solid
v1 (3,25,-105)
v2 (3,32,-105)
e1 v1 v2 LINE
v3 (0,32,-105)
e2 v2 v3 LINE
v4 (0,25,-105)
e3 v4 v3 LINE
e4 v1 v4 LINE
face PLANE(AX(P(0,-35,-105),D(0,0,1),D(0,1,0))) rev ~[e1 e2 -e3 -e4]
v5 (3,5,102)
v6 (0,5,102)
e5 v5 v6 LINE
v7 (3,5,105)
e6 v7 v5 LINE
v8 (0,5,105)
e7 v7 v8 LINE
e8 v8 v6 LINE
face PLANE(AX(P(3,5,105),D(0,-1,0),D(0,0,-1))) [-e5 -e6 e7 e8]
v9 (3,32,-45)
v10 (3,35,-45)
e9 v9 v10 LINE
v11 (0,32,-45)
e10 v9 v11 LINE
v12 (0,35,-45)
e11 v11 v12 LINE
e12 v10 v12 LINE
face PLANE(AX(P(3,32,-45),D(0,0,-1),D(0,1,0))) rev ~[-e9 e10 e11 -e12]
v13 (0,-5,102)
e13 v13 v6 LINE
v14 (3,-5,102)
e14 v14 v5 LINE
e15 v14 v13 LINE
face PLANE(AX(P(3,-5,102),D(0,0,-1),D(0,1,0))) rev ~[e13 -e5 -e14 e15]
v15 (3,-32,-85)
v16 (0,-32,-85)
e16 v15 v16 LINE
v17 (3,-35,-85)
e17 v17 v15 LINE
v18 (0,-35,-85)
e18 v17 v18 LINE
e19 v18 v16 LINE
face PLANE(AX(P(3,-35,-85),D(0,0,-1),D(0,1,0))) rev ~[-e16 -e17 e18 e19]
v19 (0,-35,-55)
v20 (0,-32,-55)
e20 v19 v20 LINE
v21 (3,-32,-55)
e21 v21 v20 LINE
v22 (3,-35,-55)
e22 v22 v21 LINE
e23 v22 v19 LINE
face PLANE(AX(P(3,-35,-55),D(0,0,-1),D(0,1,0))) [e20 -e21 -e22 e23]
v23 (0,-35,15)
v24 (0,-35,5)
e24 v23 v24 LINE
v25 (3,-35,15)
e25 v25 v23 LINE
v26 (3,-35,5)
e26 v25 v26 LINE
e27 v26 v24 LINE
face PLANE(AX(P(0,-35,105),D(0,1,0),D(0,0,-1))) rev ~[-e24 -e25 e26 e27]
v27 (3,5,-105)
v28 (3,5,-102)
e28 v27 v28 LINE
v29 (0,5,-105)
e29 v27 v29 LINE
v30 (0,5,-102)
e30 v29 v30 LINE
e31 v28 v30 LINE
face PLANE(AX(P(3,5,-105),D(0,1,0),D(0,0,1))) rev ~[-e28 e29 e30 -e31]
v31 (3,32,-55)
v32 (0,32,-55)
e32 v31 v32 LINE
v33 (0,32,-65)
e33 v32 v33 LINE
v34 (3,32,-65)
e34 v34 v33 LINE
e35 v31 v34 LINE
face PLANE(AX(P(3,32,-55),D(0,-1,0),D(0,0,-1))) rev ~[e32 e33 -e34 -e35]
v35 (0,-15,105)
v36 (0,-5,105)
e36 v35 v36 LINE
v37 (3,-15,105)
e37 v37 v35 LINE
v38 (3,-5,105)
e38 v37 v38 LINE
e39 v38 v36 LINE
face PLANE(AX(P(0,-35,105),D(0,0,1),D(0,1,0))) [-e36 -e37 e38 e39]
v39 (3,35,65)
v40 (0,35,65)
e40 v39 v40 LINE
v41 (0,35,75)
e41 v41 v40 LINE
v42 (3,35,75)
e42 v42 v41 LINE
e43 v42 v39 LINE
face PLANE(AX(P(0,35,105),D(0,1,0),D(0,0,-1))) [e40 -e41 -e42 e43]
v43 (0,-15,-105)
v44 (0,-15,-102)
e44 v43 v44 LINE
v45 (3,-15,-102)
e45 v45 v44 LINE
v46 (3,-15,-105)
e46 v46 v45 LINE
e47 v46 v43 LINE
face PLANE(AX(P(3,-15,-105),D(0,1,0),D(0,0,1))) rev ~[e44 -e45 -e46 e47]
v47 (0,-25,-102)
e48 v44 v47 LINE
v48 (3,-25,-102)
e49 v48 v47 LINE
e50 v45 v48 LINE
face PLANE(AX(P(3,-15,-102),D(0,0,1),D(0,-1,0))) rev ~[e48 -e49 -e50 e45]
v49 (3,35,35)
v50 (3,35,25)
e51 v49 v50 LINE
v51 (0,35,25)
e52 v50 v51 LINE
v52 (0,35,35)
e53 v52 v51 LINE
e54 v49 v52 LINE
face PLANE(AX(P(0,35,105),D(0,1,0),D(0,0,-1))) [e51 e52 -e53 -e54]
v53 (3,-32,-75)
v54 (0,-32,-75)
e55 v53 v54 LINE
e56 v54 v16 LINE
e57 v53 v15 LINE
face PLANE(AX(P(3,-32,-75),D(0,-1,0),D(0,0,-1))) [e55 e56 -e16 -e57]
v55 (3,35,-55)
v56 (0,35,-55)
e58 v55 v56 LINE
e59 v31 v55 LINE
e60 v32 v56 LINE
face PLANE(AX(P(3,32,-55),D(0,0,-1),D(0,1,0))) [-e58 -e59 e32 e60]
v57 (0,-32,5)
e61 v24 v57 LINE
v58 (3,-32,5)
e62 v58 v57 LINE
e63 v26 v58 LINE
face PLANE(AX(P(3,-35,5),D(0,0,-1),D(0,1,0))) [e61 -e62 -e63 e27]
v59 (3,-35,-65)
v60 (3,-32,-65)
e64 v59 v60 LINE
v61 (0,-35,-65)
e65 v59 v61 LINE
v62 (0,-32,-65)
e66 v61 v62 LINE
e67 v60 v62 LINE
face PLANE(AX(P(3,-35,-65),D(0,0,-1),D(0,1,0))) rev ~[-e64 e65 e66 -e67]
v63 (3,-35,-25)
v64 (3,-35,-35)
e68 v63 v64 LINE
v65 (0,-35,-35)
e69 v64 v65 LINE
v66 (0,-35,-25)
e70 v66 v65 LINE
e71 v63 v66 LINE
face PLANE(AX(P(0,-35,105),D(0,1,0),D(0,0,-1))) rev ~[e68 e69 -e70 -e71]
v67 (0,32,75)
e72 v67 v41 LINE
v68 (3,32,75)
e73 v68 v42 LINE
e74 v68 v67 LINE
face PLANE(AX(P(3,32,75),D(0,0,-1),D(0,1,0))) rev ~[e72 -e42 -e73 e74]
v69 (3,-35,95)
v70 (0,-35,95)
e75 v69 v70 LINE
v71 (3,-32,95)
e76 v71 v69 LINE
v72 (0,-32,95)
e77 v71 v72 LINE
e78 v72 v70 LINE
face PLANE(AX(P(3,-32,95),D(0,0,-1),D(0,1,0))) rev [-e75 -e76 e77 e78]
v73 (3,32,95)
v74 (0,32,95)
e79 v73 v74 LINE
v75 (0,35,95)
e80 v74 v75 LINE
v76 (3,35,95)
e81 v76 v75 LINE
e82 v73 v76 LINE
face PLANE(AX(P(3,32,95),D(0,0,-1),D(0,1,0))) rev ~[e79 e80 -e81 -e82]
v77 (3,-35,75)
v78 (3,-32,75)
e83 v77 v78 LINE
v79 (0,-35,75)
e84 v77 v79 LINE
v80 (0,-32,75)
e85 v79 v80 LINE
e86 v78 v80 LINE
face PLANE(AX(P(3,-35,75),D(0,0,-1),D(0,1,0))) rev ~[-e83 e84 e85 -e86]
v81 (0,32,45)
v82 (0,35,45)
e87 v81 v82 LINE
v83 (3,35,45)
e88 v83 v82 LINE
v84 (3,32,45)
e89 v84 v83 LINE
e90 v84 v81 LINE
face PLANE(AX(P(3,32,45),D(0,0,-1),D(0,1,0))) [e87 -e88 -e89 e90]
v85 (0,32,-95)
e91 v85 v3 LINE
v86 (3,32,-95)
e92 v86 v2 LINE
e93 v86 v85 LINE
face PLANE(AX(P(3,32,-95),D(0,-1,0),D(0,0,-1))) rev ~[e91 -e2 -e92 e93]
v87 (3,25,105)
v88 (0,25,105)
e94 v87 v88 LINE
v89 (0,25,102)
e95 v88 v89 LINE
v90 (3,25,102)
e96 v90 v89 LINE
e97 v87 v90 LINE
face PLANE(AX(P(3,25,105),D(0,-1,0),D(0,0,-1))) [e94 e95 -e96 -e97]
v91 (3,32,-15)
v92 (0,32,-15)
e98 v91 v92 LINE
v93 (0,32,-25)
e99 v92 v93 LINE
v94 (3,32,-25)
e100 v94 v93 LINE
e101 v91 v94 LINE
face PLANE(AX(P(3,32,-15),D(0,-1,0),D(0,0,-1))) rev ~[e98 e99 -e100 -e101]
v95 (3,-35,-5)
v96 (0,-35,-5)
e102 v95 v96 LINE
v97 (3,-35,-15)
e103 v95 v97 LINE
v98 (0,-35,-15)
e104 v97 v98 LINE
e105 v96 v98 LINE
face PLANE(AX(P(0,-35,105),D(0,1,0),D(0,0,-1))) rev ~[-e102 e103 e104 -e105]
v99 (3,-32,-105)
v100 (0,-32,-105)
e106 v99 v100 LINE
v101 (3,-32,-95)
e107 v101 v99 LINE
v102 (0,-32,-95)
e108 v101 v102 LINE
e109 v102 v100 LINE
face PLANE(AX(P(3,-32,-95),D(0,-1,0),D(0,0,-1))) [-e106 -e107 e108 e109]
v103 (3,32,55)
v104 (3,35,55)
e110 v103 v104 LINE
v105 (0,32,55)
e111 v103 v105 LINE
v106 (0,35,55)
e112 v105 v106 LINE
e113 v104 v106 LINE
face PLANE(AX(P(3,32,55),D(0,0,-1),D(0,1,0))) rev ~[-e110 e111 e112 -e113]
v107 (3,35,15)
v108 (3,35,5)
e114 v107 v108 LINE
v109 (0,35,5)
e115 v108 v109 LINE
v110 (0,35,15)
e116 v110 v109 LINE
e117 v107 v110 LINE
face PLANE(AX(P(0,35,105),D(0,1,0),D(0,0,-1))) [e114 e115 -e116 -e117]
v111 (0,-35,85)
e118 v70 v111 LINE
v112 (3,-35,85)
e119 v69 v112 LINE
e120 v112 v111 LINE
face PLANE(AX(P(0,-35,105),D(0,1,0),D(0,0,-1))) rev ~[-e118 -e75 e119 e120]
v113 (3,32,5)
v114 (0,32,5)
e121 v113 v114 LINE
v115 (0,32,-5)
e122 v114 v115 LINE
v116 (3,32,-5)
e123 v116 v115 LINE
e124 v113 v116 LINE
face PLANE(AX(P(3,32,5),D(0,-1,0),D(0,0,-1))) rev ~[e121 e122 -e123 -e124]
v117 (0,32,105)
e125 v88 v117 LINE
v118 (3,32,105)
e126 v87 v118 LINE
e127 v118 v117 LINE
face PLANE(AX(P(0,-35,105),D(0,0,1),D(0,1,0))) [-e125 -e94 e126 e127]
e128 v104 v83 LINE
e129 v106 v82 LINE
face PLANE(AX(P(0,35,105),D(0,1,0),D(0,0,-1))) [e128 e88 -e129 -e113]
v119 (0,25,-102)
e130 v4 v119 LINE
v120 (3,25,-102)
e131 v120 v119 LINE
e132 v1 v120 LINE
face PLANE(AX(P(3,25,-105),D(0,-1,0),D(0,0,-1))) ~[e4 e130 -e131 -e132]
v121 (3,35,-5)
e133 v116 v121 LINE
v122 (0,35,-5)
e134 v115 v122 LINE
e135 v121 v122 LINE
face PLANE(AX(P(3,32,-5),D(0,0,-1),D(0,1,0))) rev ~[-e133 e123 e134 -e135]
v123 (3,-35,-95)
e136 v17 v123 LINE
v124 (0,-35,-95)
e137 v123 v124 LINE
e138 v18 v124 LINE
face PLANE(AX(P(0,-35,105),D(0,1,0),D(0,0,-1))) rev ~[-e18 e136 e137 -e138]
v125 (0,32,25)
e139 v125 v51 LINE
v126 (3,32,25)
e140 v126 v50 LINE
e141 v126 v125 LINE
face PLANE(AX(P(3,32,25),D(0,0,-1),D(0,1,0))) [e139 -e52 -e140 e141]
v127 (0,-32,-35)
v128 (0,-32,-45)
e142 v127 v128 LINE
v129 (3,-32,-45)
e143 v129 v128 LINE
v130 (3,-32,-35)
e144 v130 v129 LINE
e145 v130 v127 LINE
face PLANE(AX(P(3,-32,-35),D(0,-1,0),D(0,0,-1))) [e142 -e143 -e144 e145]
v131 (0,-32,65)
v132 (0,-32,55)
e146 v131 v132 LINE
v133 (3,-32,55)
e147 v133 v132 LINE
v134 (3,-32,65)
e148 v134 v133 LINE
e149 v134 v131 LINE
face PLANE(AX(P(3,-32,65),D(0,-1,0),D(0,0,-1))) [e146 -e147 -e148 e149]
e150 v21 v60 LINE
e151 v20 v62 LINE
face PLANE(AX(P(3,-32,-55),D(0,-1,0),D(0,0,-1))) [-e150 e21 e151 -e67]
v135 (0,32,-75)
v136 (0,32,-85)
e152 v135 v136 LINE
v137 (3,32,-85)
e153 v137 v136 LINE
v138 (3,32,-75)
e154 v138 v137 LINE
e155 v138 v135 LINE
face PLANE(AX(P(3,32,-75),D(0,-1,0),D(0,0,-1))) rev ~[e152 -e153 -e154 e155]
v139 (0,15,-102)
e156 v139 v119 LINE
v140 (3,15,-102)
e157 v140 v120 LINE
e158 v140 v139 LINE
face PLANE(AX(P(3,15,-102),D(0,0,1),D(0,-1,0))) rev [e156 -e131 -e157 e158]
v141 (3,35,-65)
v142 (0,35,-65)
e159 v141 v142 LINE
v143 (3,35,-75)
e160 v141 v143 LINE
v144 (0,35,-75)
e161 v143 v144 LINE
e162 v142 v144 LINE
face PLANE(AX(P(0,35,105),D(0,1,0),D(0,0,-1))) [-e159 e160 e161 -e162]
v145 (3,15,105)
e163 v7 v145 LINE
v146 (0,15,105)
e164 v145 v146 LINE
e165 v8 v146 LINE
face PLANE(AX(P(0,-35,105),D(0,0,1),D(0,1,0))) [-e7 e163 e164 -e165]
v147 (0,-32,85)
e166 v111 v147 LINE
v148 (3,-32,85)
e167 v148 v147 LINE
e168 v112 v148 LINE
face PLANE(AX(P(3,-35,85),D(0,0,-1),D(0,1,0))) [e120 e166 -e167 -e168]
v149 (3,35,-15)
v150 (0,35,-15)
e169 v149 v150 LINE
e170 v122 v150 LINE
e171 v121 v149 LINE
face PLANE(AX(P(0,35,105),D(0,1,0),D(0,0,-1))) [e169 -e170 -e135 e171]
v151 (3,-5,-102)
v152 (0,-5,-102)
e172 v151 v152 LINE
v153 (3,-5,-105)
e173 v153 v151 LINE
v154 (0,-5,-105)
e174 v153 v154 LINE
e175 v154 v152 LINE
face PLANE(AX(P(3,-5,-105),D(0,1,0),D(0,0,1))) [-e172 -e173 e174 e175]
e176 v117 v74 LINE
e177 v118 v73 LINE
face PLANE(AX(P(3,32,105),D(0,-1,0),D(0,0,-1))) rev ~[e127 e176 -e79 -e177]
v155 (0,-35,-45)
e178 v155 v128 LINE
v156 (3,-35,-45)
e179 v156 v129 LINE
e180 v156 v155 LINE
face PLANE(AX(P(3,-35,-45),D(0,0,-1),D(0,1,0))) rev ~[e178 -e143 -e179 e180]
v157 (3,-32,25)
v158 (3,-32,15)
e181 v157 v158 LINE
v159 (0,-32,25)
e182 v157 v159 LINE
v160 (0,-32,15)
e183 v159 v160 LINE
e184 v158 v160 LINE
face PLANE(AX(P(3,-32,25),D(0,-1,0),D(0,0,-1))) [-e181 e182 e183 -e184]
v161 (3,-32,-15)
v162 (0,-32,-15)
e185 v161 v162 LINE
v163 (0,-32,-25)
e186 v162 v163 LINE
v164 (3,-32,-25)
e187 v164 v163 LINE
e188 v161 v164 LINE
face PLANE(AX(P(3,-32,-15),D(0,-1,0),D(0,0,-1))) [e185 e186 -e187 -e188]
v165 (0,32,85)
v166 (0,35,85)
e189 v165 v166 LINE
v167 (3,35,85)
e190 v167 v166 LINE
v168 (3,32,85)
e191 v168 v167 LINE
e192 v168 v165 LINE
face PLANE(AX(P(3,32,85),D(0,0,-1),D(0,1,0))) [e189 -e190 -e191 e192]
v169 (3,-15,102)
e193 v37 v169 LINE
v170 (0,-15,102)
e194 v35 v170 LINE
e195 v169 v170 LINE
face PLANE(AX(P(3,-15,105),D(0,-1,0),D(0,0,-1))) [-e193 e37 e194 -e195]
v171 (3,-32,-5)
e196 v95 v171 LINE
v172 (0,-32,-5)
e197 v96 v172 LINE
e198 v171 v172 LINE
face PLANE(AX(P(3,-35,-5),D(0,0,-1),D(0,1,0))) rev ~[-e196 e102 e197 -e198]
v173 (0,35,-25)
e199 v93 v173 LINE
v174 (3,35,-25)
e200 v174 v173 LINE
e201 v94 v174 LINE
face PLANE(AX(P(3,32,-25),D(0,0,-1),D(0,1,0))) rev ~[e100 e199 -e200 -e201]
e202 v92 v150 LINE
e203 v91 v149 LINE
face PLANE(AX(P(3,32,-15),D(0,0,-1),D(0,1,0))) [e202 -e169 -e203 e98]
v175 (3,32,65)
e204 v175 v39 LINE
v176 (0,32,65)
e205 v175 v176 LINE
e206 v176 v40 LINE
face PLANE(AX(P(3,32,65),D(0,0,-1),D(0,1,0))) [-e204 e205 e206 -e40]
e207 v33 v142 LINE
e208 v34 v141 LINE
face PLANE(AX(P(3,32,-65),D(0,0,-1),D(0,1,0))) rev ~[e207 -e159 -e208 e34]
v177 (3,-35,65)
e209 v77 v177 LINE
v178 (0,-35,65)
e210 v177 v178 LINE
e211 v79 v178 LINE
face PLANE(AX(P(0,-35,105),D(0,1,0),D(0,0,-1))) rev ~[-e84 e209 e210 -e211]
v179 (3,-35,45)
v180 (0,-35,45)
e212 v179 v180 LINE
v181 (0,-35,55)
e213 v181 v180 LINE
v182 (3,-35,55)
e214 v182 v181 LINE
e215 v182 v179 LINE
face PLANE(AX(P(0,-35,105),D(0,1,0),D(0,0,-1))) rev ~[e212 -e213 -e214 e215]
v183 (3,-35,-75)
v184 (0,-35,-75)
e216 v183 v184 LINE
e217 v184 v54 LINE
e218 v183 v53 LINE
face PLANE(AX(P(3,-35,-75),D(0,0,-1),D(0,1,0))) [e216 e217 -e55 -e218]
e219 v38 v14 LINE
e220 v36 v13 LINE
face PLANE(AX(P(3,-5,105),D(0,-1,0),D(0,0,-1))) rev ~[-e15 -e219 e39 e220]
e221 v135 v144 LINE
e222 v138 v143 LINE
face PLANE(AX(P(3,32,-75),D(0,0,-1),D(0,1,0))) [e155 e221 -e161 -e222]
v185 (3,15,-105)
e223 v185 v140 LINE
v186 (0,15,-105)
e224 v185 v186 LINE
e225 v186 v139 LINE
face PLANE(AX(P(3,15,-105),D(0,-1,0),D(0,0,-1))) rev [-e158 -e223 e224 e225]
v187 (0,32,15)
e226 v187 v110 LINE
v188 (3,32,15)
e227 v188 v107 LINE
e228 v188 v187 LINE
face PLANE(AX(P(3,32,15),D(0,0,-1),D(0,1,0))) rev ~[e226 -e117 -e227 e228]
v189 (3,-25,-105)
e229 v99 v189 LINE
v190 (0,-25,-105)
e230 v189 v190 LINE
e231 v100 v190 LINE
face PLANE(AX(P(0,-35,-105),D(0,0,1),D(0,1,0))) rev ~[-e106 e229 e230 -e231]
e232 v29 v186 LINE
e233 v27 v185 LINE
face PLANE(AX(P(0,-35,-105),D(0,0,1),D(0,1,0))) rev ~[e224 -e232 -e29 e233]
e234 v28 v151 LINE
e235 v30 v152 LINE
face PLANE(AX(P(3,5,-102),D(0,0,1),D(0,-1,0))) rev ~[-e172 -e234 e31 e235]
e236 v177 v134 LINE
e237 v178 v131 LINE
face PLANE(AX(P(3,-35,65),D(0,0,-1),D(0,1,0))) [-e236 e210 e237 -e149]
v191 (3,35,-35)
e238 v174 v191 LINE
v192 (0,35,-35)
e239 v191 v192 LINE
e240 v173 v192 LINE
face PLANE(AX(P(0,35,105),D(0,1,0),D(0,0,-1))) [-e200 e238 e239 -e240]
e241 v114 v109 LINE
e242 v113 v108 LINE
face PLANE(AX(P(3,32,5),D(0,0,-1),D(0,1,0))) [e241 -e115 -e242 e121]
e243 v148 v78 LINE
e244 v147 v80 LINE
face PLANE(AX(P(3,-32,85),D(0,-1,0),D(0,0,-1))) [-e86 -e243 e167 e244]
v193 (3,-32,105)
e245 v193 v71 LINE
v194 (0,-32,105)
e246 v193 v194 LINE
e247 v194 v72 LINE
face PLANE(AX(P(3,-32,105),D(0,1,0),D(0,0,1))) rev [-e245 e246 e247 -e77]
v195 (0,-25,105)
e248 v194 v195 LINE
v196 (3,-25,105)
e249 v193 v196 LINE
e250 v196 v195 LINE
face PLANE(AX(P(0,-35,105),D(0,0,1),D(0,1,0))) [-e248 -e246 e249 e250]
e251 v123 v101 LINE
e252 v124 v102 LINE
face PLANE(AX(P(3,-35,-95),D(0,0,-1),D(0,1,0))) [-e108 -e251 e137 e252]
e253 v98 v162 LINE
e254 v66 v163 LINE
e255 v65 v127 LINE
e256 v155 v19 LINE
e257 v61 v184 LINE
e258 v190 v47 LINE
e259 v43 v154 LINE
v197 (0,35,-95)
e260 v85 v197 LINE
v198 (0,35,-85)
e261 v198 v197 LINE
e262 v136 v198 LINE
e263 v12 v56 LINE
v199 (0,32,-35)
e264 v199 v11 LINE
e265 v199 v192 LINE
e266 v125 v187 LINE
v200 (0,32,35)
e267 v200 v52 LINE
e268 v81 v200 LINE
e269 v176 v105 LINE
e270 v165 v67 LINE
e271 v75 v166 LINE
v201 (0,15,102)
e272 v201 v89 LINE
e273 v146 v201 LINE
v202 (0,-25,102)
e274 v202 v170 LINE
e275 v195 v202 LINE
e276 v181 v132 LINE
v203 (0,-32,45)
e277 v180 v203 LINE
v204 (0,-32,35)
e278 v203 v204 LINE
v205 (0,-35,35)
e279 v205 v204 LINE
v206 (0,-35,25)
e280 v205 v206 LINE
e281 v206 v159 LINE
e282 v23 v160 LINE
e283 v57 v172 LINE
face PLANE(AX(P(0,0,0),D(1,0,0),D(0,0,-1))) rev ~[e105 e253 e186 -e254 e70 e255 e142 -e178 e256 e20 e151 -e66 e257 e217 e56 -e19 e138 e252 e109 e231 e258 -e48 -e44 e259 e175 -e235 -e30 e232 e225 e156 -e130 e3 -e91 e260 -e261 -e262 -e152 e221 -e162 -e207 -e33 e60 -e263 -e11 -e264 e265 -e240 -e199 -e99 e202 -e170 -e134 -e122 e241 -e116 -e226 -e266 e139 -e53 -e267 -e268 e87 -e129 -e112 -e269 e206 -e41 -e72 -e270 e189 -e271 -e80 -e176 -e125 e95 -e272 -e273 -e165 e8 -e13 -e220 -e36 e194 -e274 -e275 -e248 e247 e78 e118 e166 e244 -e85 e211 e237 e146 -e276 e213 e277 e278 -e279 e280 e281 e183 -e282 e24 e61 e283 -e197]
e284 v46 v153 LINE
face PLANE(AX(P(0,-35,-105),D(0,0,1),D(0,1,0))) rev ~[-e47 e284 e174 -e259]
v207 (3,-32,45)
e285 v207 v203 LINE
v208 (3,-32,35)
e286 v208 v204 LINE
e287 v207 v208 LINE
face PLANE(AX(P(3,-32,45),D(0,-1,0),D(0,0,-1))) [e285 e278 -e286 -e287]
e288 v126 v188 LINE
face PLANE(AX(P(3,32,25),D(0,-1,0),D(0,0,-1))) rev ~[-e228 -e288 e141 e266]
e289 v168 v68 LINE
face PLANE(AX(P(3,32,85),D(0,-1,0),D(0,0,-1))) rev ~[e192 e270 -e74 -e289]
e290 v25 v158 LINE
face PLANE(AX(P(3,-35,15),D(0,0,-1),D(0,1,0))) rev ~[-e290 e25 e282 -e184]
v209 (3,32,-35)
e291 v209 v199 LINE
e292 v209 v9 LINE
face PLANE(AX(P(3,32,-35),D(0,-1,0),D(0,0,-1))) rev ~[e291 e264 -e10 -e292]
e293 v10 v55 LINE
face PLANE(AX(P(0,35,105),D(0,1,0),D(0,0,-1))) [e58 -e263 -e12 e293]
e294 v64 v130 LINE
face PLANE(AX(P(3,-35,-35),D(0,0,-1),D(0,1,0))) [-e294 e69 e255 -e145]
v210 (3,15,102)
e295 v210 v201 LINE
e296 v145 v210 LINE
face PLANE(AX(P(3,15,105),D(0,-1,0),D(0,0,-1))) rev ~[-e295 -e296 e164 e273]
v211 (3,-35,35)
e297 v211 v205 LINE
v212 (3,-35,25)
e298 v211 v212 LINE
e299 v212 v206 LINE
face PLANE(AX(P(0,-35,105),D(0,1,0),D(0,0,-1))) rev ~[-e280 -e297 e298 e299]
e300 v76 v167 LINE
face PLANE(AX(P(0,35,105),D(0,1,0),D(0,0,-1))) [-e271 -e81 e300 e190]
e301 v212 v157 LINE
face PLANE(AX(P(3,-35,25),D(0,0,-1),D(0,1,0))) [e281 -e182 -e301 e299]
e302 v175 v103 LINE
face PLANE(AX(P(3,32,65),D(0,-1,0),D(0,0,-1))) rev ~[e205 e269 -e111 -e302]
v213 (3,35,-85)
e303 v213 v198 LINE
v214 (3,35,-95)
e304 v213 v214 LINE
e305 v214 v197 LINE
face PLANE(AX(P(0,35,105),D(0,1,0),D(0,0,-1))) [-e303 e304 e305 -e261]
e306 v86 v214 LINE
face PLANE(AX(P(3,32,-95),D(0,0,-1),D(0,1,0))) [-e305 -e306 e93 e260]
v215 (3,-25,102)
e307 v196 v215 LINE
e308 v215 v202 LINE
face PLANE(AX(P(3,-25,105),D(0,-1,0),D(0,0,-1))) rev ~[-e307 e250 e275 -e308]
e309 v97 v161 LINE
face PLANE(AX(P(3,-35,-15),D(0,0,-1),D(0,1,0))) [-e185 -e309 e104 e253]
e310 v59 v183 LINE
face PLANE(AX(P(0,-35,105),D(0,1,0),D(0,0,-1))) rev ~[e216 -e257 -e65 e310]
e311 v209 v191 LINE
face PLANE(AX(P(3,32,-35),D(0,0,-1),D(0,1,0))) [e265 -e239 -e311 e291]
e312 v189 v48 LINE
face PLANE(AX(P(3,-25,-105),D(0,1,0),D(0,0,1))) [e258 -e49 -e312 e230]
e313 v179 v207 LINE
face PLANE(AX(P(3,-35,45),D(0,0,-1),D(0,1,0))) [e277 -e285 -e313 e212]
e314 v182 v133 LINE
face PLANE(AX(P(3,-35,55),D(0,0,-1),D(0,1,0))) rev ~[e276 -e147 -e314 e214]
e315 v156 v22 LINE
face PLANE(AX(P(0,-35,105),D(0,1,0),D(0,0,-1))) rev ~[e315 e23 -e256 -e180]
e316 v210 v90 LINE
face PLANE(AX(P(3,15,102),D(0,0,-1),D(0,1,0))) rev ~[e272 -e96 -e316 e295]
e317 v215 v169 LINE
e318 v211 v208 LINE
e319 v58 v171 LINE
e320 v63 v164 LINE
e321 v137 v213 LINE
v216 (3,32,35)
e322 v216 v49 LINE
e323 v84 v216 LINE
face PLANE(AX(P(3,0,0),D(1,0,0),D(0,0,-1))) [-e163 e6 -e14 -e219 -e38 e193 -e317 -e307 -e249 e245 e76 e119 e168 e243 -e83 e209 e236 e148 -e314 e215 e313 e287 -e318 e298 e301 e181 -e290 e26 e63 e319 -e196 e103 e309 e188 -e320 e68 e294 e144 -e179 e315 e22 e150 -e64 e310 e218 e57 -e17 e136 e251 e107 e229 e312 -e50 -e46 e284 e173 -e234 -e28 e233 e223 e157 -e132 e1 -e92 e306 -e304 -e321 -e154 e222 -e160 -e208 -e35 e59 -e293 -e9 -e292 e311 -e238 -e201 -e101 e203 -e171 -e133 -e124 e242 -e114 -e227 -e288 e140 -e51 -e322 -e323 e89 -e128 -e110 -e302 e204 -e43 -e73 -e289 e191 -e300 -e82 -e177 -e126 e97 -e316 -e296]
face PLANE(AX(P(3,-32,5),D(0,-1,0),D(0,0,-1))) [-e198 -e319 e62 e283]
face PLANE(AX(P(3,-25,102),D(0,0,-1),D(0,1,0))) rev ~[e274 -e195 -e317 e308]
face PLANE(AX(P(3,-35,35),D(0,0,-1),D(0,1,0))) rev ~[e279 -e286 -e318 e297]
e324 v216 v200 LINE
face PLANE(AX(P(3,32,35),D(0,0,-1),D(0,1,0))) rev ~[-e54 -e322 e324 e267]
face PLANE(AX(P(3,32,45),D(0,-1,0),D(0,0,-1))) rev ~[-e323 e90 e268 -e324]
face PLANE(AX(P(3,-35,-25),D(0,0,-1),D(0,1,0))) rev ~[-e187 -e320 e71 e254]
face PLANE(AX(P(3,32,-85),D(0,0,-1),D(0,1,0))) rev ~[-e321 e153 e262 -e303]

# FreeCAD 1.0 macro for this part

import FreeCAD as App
import Part
import Sketcher

doc = App.newDocument("Part")
body = doc.addObject("PartDesign::Body", "Body")

# Sketch on YZ plane
sketch1 = body.newObject("Sketcher::SketchObject", "Sketch")
sketch1.AttachmentSupport = (doc.getObject("YZ_Plane"), [""])
sketch1.MapMode = "FlatFace"
sketch1.addGeometry([
    Part.LineSegment(App.Vector(35, 105, 0), App.Vector(-35, 105, 0)),
    Part.LineSegment(App.Vector(-35, 105, 0), App.Vector(-35, -105, 0)),
    Part.LineSegment(App.Vector(-35, -105, 0), App.Vector(35, -105, 0)),
    Part.LineSegment(App.Vector(35, -105, 0), App.Vector(35, 105, 0)),
], False)
sketch1.addConstraint([
    Sketcher.Constraint("Coincident", 0, 2, 1, 1),
    Sketcher.Constraint("Coincident", 1, 2, 2, 1),
    Sketcher.Constraint("Coincident", 2, 2, 3, 1),
    Sketcher.Constraint("Coincident", 3, 2, 0, 1),
    Sketcher.Constraint("Horizontal", 0),
    Sketcher.Constraint("Vertical", 1),
    Sketcher.Constraint("Horizontal", 2),
    Sketcher.Constraint("Vertical", 3),
    Sketcher.Constraint("Symmetric", 0, 2, 2, 2, -1, 1),
    Sketcher.Constraint("DistanceX", 0, 2, 0, 1, 70.0),
    Sketcher.Constraint("DistanceY", 1, 2, 1, 1, 210.0),
])
pad1 = body.newObject("PartDesign::Pad", "Pad")
pad1.Profile = sketch1
pad1.Length = 3

# Sketch on YZ plane
sketch2 = body.newObject("Sketcher::SketchObject", "Sketch001")
sketch2.AttachmentSupport = (doc.getObject("YZ_Plane"), [""])
sketch2.MapMode = "FlatFace"
sketch2.AttachmentOffset = App.Placement(App.Vector(0, 0, 3), App.Rotation())
sketch2.addGeometry([
    Part.LineSegment(App.Vector(35, 105, 0), App.Vector(32, 105, 0)),
    Part.LineSegment(App.Vector(32, 105, 0), App.Vector(32, 95, 0)),
    Part.LineSegment(App.Vector(32, 95, 0), App.Vector(35, 95, 0)),
    Part.LineSegment(App.Vector(35, 95, 0), App.Vector(35, 105, 0)),
], False)
sketch2.addConstraint([
    Sketcher.Constraint("Coincident", 0, 2, 1, 1),
    Sketcher.Constraint("Coincident", 1, 2, 2, 1),
    Sketcher.Constraint("Coincident", 2, 2, 3, 1),
    Sketcher.Constraint("Coincident", 3, 2, 0, 1),
    Sketcher.Constraint("Horizontal", 0),
    Sketcher.Constraint("Vertical", 1),
    Sketcher.Constraint("Horizontal", 2),
    Sketcher.Constraint("Vertical", 3),
    Sketcher.Constraint("DistanceX", 0, 2, 0, 1, 3.0),
    Sketcher.Constraint("DistanceY", 1, 2, 1, 1, 10.0),
    Sketcher.Constraint("DistanceX", -1, 1, 0, 2, 32.0),
    Sketcher.Constraint("DistanceY", -1, 1, 0, 2, 105.0),
])
pocket1 = body.newObject("PartDesign::Pocket", "Pocket")
pocket1.Profile = sketch2
pocket1.Length = 3
doc.recompute()

linearpattern = body.newObject("PartDesign::LinearPattern", "LinearPattern")
linearpattern.Originals = [pocket1]
linearpattern.Direction = (doc.getObject("Z_Axis"), [""])
linearpattern.Mode = "offset"
linearpattern.Offset = 20
linearpattern.Occurrences = 11
linearpattern.Reversed = True
body.Tip = linearpattern
doc.recompute()

mirrored = body.newObject("PartDesign::Mirrored", "Mirrored")
mirrored.Originals = [pocket1]
mirrored.MirrorPlane = (doc.getObject("XZ_Plane"), [""])
body.Tip = mirrored

# Sketch on YZ plane
sketch3 = body.newObject("Sketcher::SketchObject", "Sketch002")
sketch3.AttachmentSupport = (doc.getObject("YZ_Plane"), [""])
sketch3.MapMode = "FlatFace"
sketch3.AttachmentOffset = App.Placement(App.Vector(0, 0, 3), App.Rotation())
sketch3.addGeometry([
    Part.LineSegment(App.Vector(-32, 85, 0), App.Vector(-35, 85, 0)),
    Part.LineSegment(App.Vector(-35, 85, 0), App.Vector(-35, 75, 0)),
    Part.LineSegment(App.Vector(-35, 75, 0), App.Vector(-32, 75, 0)),
    Part.LineSegment(App.Vector(-32, 75, 0), App.Vector(-32, 85, 0)),
], False)
sketch3.addConstraint([
    Sketcher.Constraint("Coincident", 0, 2, 1, 1),
    Sketcher.Constraint("Coincident", 1, 2, 2, 1),
    Sketcher.Constraint("Coincident", 2, 2, 3, 1),
    Sketcher.Constraint("Coincident", 3, 2, 0, 1),
    Sketcher.Constraint("Horizontal", 0),
    Sketcher.Constraint("Vertical", 1),
    Sketcher.Constraint("Horizontal", 2),
    Sketcher.Constraint("Vertical", 3),
    Sketcher.Constraint("DistanceX", 0, 2, 0, 1, 3.0),
    Sketcher.Constraint("DistanceY", 1, 2, 1, 1, 10.0),
    Sketcher.Constraint("DistanceX", 0, 2, -1, 1, 35.0),
    Sketcher.Constraint("DistanceY", -1, 1, 0, 2, 85.0),
])
pocket2 = body.newObject("PartDesign::Pocket", "Pocket001")
pocket2.Profile = sketch3
pocket2.Length = 3

# Sketch on YZ plane
sketch4 = body.newObject("Sketcher::SketchObject", "Sketch003")
sketch4.AttachmentSupport = (doc.getObject("YZ_Plane"), [""])
sketch4.MapMode = "FlatFace"
sketch4.AttachmentOffset = App.Placement(App.Vector(0, 0, 3), App.Rotation())
sketch4.addGeometry([
    Part.LineSegment(App.Vector(-32, 65, 0), App.Vector(-35, 65, 0)),
    Part.LineSegment(App.Vector(-35, 65, 0), App.Vector(-35, 55, 0)),
    Part.LineSegment(App.Vector(-35, 55, 0), App.Vector(-32, 55, 0)),
    Part.LineSegment(App.Vector(-32, 55, 0), App.Vector(-32, 65, 0)),
], False)
sketch4.addConstraint([
    Sketcher.Constraint("Coincident", 0, 2, 1, 1),
    Sketcher.Constraint("Coincident", 1, 2, 2, 1),
    Sketcher.Constraint("Coincident", 2, 2, 3, 1),
    Sketcher.Constraint("Coincident", 3, 2, 0, 1),
    Sketcher.Constraint("Horizontal", 0),
    Sketcher.Constraint("Vertical", 1),
    Sketcher.Constraint("Horizontal", 2),
    Sketcher.Constraint("Vertical", 3),
    Sketcher.Constraint("DistanceX", 0, 2, 0, 1, 3.0),
    Sketcher.Constraint("DistanceY", 1, 2, 1, 1, 10.0),
    Sketcher.Constraint("DistanceX", 0, 2, -1, 1, 35.0),
    Sketcher.Constraint("DistanceY", -1, 1, 0, 2, 65.0),
])
pocket3 = body.newObject("PartDesign::Pocket", "Pocket002")
pocket3.Profile = sketch4
pocket3.Length = 3

# Sketch on YZ plane
sketch5 = body.newObject("Sketcher::SketchObject", "Sketch004")
sketch5.AttachmentSupport = (doc.getObject("YZ_Plane"), [""])
sketch5.MapMode = "FlatFace"
sketch5.AttachmentOffset = App.Placement(App.Vector(0, 0, 3), App.Rotation())
sketch5.addGeometry([
    Part.LineSegment(App.Vector(-32, 45, 0), App.Vector(-35, 45, 0)),
    Part.LineSegment(App.Vector(-35, 45, 0), App.Vector(-35, 35, 0)),
    Part.LineSegment(App.Vector(-35, 35, 0), App.Vector(-32, 35, 0)),
    Part.LineSegment(App.Vector(-32, 35, 0), App.Vector(-32, 45, 0)),
], False)
sketch5.addConstraint([
    Sketcher.Constraint("Coincident", 0, 2, 1, 1),
    Sketcher.Constraint("Coincident", 1, 2, 2, 1),
    Sketcher.Constraint("Coincident", 2, 2, 3, 1),
    Sketcher.Constraint("Coincident", 3, 2, 0, 1),
    Sketcher.Constraint("Horizontal", 0),
    Sketcher.Constraint("Vertical", 1),
    Sketcher.Constraint("Horizontal", 2),
    Sketcher.Constraint("Vertical", 3),
    Sketcher.Constraint("DistanceX", 0, 2, 0, 1, 3.0),
    Sketcher.Constraint("DistanceY", 1, 2, 1, 1, 10.0),
    Sketcher.Constraint("DistanceX", 0, 2, -1, 1, 35.0),
    Sketcher.Constraint("DistanceY", -1, 1, 0, 2, 45.0),
])
pocket4 = body.newObject("PartDesign::Pocket", "Pocket003")
pocket4.Profile = sketch5
pocket4.Length = 3

# Sketch on YZ plane
sketch6 = body.newObject("Sketcher::SketchObject", "Sketch005")
sketch6.AttachmentSupport = (doc.getObject("YZ_Plane"), [""])
sketch6.MapMode = "FlatFace"
sketch6.AttachmentOffset = App.Placement(App.Vector(0, 0, 3), App.Rotation())
sketch6.addGeometry([
    Part.LineSegment(App.Vector(-32, 25, 0), App.Vector(-35, 25, 0)),
    Part.LineSegment(App.Vector(-35, 25, 0), App.Vector(-35, 15, 0)),
    Part.LineSegment(App.Vector(-35, 15, 0), App.Vector(-32, 15, 0)),
    Part.LineSegment(App.Vector(-32, 15, 0), App.Vector(-32, 25, 0)),
], False)
sketch6.addConstraint([
    Sketcher.Constraint("Coincident", 0, 2, 1, 1),
    Sketcher.Constraint("Coincident", 1, 2, 2, 1),
    Sketcher.Constraint("Coincident", 2, 2, 3, 1),
    Sketcher.Constraint("Coincident", 3, 2, 0, 1),
    Sketcher.Constraint("Horizontal", 0),
    Sketcher.Constraint("Vertical", 1),
    Sketcher.Constraint("Horizontal", 2),
    Sketcher.Constraint("Vertical", 3),
    Sketcher.Constraint("DistanceX", 0, 2, 0, 1, 3.0),
    Sketcher.Constraint("DistanceY", 1, 2, 1, 1, 10.0),
    Sketcher.Constraint("DistanceX", 0, 2, -1, 1, 35.0),
    Sketcher.Constraint("DistanceY", -1, 1, 0, 2, 25.0),
])
pocket5 = body.newObject("PartDesign::Pocket", "Pocket004")
pocket5.Profile = sketch6
pocket5.Length = 3

# Sketch on YZ plane
sketch7 = body.newObject("Sketcher::SketchObject", "Sketch006")
sketch7.AttachmentSupport = (doc.getObject("YZ_Plane"), [""])
sketch7.MapMode = "FlatFace"
sketch7.AttachmentOffset = App.Placement(App.Vector(0, 0, 3), App.Rotation())
sketch7.addGeometry([
    Part.LineSegment(App.Vector(-32, 5, 0), App.Vector(-35, 5, 0)),
    Part.LineSegment(App.Vector(-35, 5, 0), App.Vector(-35, -5, 0)),
    Part.LineSegment(App.Vector(-35, -5, 0), App.Vector(-32, -5, 0)),
    Part.LineSegment(App.Vector(-32, -5, 0), App.Vector(-32, 5, 0)),
], False)
sketch7.addConstraint([
    Sketcher.Constraint("Coincident", 0, 2, 1, 1),
    Sketcher.Constraint("Coincident", 1, 2, 2, 1),
    Sketcher.Constraint("Coincident", 2, 2, 3, 1),
    Sketcher.Constraint("Coincident", 3, 2, 0, 1),
    Sketcher.Constraint("Horizontal", 0),
    Sketcher.Constraint("Vertical", 1),
    Sketcher.Constraint("Horizontal", 2),
    Sketcher.Constraint("Vertical", 3),
    Sketcher.Constraint("DistanceX", 0, 2, 0, 1, 3.0),
    Sketcher.Constraint("DistanceY", 1, 2, 1, 1, 10.0),
    Sketcher.Constraint("DistanceX", 0, 2, -1, 1, 35.0),
    Sketcher.Constraint("DistanceY", -1, 1, 0, 2, 5.0),
])
pocket6 = body.newObject("PartDesign::Pocket", "Pocket005")
pocket6.Profile = sketch7
pocket6.Length = 3

# Sketch on YZ plane
sketch8 = body.newObject("Sketcher::SketchObject", "Sketch007")
sketch8.AttachmentSupport = (doc.getObject("YZ_Plane"), [""])
sketch8.MapMode = "FlatFace"
sketch8.AttachmentOffset = App.Placement(App.Vector(0, 0, 3), App.Rotation())
sketch8.addGeometry([
    Part.LineSegment(App.Vector(-32, -15, 0), App.Vector(-35, -15, 0)),
    Part.LineSegment(App.Vector(-35, -15, 0), App.Vector(-35, -25, 0)),
    Part.LineSegment(App.Vector(-35, -25, 0), App.Vector(-32, -25, 0)),
    Part.LineSegment(App.Vector(-32, -25, 0), App.Vector(-32, -15, 0)),
], False)
sketch8.addConstraint([
    Sketcher.Constraint("Coincident", 0, 2, 1, 1),
    Sketcher.Constraint("Coincident", 1, 2, 2, 1),
    Sketcher.Constraint("Coincident", 2, 2, 3, 1),
    Sketcher.Constraint("Coincident", 3, 2, 0, 1),
    Sketcher.Constraint("Horizontal", 0),
    Sketcher.Constraint("Vertical", 1),
    Sketcher.Constraint("Horizontal", 2),
    Sketcher.Constraint("Vertical", 3),
    Sketcher.Constraint("DistanceX", 0, 2, 0, 1, 3.0),
    Sketcher.Constraint("DistanceY", 1, 2, 1, 1, 10.0),
    Sketcher.Constraint("DistanceX", 0, 2, -1, 1, 35.0),
    Sketcher.Constraint("DistanceY", 0, 2, -1, 1, 15.0),
])
pocket7 = body.newObject("PartDesign::Pocket", "Pocket006")
pocket7.Profile = sketch8
pocket7.Length = 3

# Sketch on YZ plane
sketch9 = body.newObject("Sketcher::SketchObject", "Sketch008")
sketch9.AttachmentSupport = (doc.getObject("YZ_Plane"), [""])
sketch9.MapMode = "FlatFace"
sketch9.AttachmentOffset = App.Placement(App.Vector(0, 0, 3), App.Rotation())
sketch9.addGeometry([
    Part.LineSegment(App.Vector(-32, -35, 0), App.Vector(-35, -35, 0)),
    Part.LineSegment(App.Vector(-35, -35, 0), App.Vector(-35, -45, 0)),
    Part.LineSegment(App.Vector(-35, -45, 0), App.Vector(-32, -45, 0)),
    Part.LineSegment(App.Vector(-32, -45, 0), App.Vector(-32, -35, 0)),
], False)
sketch9.addConstraint([
    Sketcher.Constraint("Coincident", 0, 2, 1, 1),
    Sketcher.Constraint("Coincident", 1, 2, 2, 1),
    Sketcher.Constraint("Coincident", 2, 2, 3, 1),
    Sketcher.Constraint("Coincident", 3, 2, 0, 1),
    Sketcher.Constraint("Horizontal", 0),
    Sketcher.Constraint("Vertical", 1),
    Sketcher.Constraint("Horizontal", 2),
    Sketcher.Constraint("Vertical", 3),
    Sketcher.Constraint("DistanceX", 0, 2, 0, 1, 3.0),
    Sketcher.Constraint("DistanceY", 1, 2, 1, 1, 10.0),
    Sketcher.Constraint("DistanceX", 0, 2, -1, 1, 35.0),
    Sketcher.Constraint("DistanceY", 0, 2, -1, 1, 35.0),
])
pocket8 = body.newObject("PartDesign::Pocket", "Pocket007")
pocket8.Profile = sketch9
pocket8.Length = 3

# Sketch on YZ plane
sketch10 = body.newObject("Sketcher::SketchObject", "Sketch009")
sketch10.AttachmentSupport = (doc.getObject("YZ_Plane"), [""])
sketch10.MapMode = "FlatFace"
sketch10.AttachmentOffset = App.Placement(App.Vector(0, 0, 3), App.Rotation())
sketch10.addGeometry([
    Part.LineSegment(App.Vector(-32, -55, 0), App.Vector(-35, -55, 0)),
    Part.LineSegment(App.Vector(-35, -55, 0), App.Vector(-35, -65, 0)),
    Part.LineSegment(App.Vector(-35, -65, 0), App.Vector(-32, -65, 0)),
    Part.LineSegment(App.Vector(-32, -65, 0), App.Vector(-32, -55, 0)),
], False)
sketch10.addConstraint([
    Sketcher.Constraint("Coincident", 0, 2, 1, 1),
    Sketcher.Constraint("Coincident", 1, 2, 2, 1),
    Sketcher.Constraint("Coincident", 2, 2, 3, 1),
    Sketcher.Constraint("Coincident", 3, 2, 0, 1),
    Sketcher.Constraint("Horizontal", 0),
    Sketcher.Constraint("Vertical", 1),
    Sketcher.Constraint("Horizontal", 2),
    Sketcher.Constraint("Vertical", 3),
    Sketcher.Constraint("DistanceX", 0, 2, 0, 1, 3.0),
    Sketcher.Constraint("DistanceY", 1, 2, 1, 1, 10.0),
    Sketcher.Constraint("DistanceX", 0, 2, -1, 1, 35.0),
    Sketcher.Constraint("DistanceY", 0, 2, -1, 1, 55.0),
])
pocket9 = body.newObject("PartDesign::Pocket", "Pocket008")
pocket9.Profile = sketch10
pocket9.Length = 3

# Sketch on YZ plane
sketch11 = body.newObject("Sketcher::SketchObject", "Sketch010")
sketch11.AttachmentSupport = (doc.getObject("YZ_Plane"), [""])
sketch11.MapMode = "FlatFace"
sketch11.AttachmentOffset = App.Placement(App.Vector(0, 0, 3), App.Rotation())
sketch11.addGeometry([
    Part.LineSegment(App.Vector(-32, -75, 0), App.Vector(-35, -75, 0)),
    Part.LineSegment(App.Vector(-35, -75, 0), App.Vector(-35, -85, 0)),
    Part.LineSegment(App.Vector(-35, -85, 0), App.Vector(-32, -85, 0)),
    Part.LineSegment(App.Vector(-32, -85, 0), App.Vector(-32, -75, 0)),
], False)
sketch11.addConstraint([
    Sketcher.Constraint("Coincident", 0, 2, 1, 1),
    Sketcher.Constraint("Coincident", 1, 2, 2, 1),
    Sketcher.Constraint("Coincident", 2, 2, 3, 1),
    Sketcher.Constraint("Coincident", 3, 2, 0, 1),
    Sketcher.Constraint("Horizontal", 0),
    Sketcher.Constraint("Vertical", 1),
    Sketcher.Constraint("Horizontal", 2),
    Sketcher.Constraint("Vertical", 3),
    Sketcher.Constraint("DistanceX", 0, 2, 0, 1, 3.0),
    Sketcher.Constraint("DistanceY", 1, 2, 1, 1, 10.0),
    Sketcher.Constraint("DistanceX", 0, 2, -1, 1, 35.0),
    Sketcher.Constraint("DistanceY", 0, 2, -1, 1, 75.0),
])
pocket10 = body.newObject("PartDesign::Pocket", "Pocket009")
pocket10.Profile = sketch11
pocket10.Length = 3

# Sketch on YZ plane
sketch12 = body.newObject("Sketcher::SketchObject", "Sketch011")
sketch12.AttachmentSupport = (doc.getObject("YZ_Plane"), [""])
sketch12.MapMode = "FlatFace"
sketch12.AttachmentOffset = App.Placement(App.Vector(0, 0, 3), App.Rotation())
sketch12.addGeometry([
    Part.LineSegment(App.Vector(-32, -95, 0), App.Vector(-35, -95, 0)),
    Part.LineSegment(App.Vector(-35, -95, 0), App.Vector(-35, -105, 0)),
    Part.LineSegment(App.Vector(-35, -105, 0), App.Vector(-32, -105, 0)),
    Part.LineSegment(App.Vector(-32, -105, 0), App.Vector(-32, -95, 0)),
], False)
sketch12.addConstraint([
    Sketcher.Constraint("Coincident", 0, 2, 1, 1),
    Sketcher.Constraint("Coincident", 1, 2, 2, 1),
    Sketcher.Constraint("Coincident", 2, 2, 3, 1),
    Sketcher.Constraint("Coincident", 3, 2, 0, 1),
    Sketcher.Constraint("Horizontal", 0),
    Sketcher.Constraint("Vertical", 1),
    Sketcher.Constraint("Horizontal", 2),
    Sketcher.Constraint("Vertical", 3),
    Sketcher.Constraint("DistanceX", 0, 2, 0, 1, 3.0),
    Sketcher.Constraint("DistanceY", 1, 2, 1, 1, 10.0),
    Sketcher.Constraint("DistanceX", 0, 2, -1, 1, 35.0),
    Sketcher.Constraint("DistanceY", 0, 2, -1, 1, 95.0),
])
pocket11 = body.newObject("PartDesign::Pocket", "Pocket010")
pocket11.Profile = sketch12
pocket11.Length = 3

# Sketch on YZ plane
sketch13 = body.newObject("Sketcher::SketchObject", "Sketch012")
sketch13.AttachmentSupport = (doc.getObject("YZ_Plane"), [""])
sketch13.MapMode = "FlatFace"
sketch13.AttachmentOffset = App.Placement(App.Vector(0, 0, 3), App.Rotation())
sketch13.addGeometry([
    Part.LineSegment(App.Vector(25, 105, 0), App.Vector(15, 105, 0)),
    Part.LineSegment(App.Vector(15, 105, 0), App.Vector(15, 102, 0)),
    Part.LineSegment(App.Vector(15, 102, 0), App.Vector(25, 102, 0)),
    Part.LineSegment(App.Vector(25, 102, 0), App.Vector(25, 105, 0)),
], False)
sketch13.addConstraint([
    Sketcher.Constraint("Coincident", 0, 2, 1, 1),
    Sketcher.Constraint("Coincident", 1, 2, 2, 1),
    Sketcher.Constraint("Coincident", 2, 2, 3, 1),
    Sketcher.Constraint("Coincident", 3, 2, 0, 1),
    Sketcher.Constraint("Horizontal", 0),
    Sketcher.Constraint("Vertical", 1),
    Sketcher.Constraint("Horizontal", 2),
    Sketcher.Constraint("Vertical", 3),
    Sketcher.Constraint("DistanceX", 0, 2, 0, 1, 10.0),
    Sketcher.Constraint("DistanceY", 1, 2, 1, 1, 3.0),
    Sketcher.Constraint("DistanceX", -1, 1, 0, 2, 15.0),
    Sketcher.Constraint("DistanceY", -1, 1, 0, 2, 105.0),
])
pocket12 = body.newObject("PartDesign::Pocket", "Pocket011")
pocket12.Profile = sketch13
pocket12.Length = 3
doc.recompute()

linearpattern2 = body.newObject("PartDesign::LinearPattern", "LinearPattern001")
linearpattern2.Originals = [pocket12]
linearpattern2.Direction = (doc.getObject("Y_Axis"), [""])
linearpattern2.Mode = "offset"
linearpattern2.Offset = 20
linearpattern2.Occurrences = 3
linearpattern2.Reversed = True
body.Tip = linearpattern2
doc.recompute()

mirrored2 = body.newObject("PartDesign::Mirrored", "Mirrored001")
mirrored2.Originals = [pocket12]
mirrored2.MirrorPlane = (doc.getObject("XY_Plane"), [""])
body.Tip = mirrored2

# Sketch on YZ plane
sketch14 = body.newObject("Sketcher::SketchObject", "Sketch013")
sketch14.AttachmentSupport = (doc.getObject("YZ_Plane"), [""])
sketch14.MapMode = "FlatFace"
sketch14.AttachmentOffset = App.Placement(App.Vector(0, 0, 3), App.Rotation())
sketch14.addGeometry([
    Part.LineSegment(App.Vector(-5, -105, 0), App.Vector(5, -105, 0)),
    Part.LineSegment(App.Vector(5, -105, 0), App.Vector(5, -102, 0)),
    Part.LineSegment(App.Vector(5, -102, 0), App.Vector(-5, -102, 0)),
    Part.LineSegment(App.Vector(-5, -102, 0), App.Vector(-5, -105, 0)),
], False)
sketch14.addConstraint([
    Sketcher.Constraint("Coincident", 0, 2, 1, 1),
    Sketcher.Constraint("Coincident", 1, 2, 2, 1),
    Sketcher.Constraint("Coincident", 2, 2, 3, 1),
    Sketcher.Constraint("Coincident", 3, 2, 0, 1),
    Sketcher.Constraint("Horizontal", 0),
    Sketcher.Constraint("Vertical", 1),
    Sketcher.Constraint("Horizontal", 2),
    Sketcher.Constraint("Vertical", 3),
    Sketcher.Constraint("DistanceX", 0, 1, 0, 2, 10.0),
    Sketcher.Constraint("DistanceY", 1, 1, 1, 2, 3.0),
    Sketcher.Constraint("DistanceX", -1, 1, 0, 2, 5.0),
    Sketcher.Constraint("DistanceY", 0, 2, -1, 1, 105.0),
])
pocket13 = body.newObject("PartDesign::Pocket", "Pocket012")
pocket13.Profile = sketch14
pocket13.Length = 3

# Sketch on YZ plane
sketch15 = body.newObject("Sketcher::SketchObject", "Sketch014")
sketch15.AttachmentSupport = (doc.getObject("YZ_Plane"), [""])
sketch15.MapMode = "FlatFace"
sketch15.AttachmentOffset = App.Placement(App.Vector(0, 0, 3), App.Rotation())
sketch15.addGeometry([
    Part.LineSegment(App.Vector(-25, -105, 0), App.Vector(-15, -105, 0)),
    Part.LineSegment(App.Vector(-15, -105, 0), App.Vector(-15, -102, 0)),
    Part.LineSegment(App.Vector(-15, -102, 0), App.Vector(-25, -102, 0)),
    Part.LineSegment(App.Vector(-25, -102, 0), App.Vector(-25, -105, 0)),
], False)
sketch15.addConstraint([
    Sketcher.Constraint("Coincident", 0, 2, 1, 1),
    Sketcher.Constraint("Coincident", 1, 2, 2, 1),
    Sketcher.Constraint("Coincident", 2, 2, 3, 1),
    Sketcher.Constraint("Coincident", 3, 2, 0, 1),
    Sketcher.Constraint("Horizontal", 0),
    Sketcher.Constraint("Vertical", 1),
    Sketcher.Constraint("Horizontal", 2),
    Sketcher.Constraint("Vertical", 3),
    Sketcher.Constraint("DistanceX", 0, 1, 0, 2, 10.0),
    Sketcher.Constraint("DistanceY", 1, 1, 1, 2, 3.0),
    Sketcher.Constraint("DistanceX", 0, 2, -1, 1, 15.0),
    Sketcher.Constraint("DistanceY", 0, 2, -1, 1, 105.0),
])
pocket14 = body.newObject("PartDesign::Pocket", "Pocket013")
pocket14.Profile = sketch15
pocket14.Length = 3

doc.recompute()
